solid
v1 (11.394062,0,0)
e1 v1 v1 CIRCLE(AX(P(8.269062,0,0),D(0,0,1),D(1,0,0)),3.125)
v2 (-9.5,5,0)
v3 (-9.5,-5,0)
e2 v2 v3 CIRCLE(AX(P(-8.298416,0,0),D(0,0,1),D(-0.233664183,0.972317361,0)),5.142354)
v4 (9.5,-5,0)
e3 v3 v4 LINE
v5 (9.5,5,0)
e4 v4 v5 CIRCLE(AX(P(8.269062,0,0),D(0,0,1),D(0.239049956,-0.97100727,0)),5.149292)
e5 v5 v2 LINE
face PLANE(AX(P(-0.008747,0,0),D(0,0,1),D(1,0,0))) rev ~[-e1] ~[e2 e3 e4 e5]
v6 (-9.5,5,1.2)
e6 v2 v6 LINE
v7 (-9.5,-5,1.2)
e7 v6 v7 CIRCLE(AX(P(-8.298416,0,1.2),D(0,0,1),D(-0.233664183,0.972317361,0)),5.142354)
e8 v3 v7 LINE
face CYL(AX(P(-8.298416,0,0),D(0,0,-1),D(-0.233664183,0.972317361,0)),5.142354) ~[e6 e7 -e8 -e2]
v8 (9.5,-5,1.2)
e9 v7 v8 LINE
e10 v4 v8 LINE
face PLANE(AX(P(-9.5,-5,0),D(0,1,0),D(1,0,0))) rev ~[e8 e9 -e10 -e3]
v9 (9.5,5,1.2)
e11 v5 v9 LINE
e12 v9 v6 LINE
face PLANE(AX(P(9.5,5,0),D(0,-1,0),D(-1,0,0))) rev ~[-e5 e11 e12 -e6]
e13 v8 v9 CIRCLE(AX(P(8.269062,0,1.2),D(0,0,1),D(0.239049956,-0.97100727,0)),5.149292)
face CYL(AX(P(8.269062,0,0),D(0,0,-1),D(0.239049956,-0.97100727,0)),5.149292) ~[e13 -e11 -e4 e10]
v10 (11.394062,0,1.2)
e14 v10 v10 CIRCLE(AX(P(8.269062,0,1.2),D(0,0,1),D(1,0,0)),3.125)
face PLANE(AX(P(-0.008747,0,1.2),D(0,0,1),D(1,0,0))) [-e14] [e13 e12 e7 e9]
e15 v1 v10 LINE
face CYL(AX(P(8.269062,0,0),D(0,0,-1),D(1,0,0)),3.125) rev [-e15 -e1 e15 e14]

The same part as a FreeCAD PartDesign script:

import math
import FreeCAD as App
import Part
import Sketcher

V = App.Vector

doc = App.newDocument("Part")
body = doc.addObject("PartDesign::Body", "Body")

sketch1 = body.newObject("Sketcher::SketchObject", "Sketch")
sketch1.AttachmentSupport = (doc.getObject("XY_Plane"), [""])
sketch1.MapMode = "FlatFace"
sketch1.addGeometry([
    Part.LineSegment(V(-9.5, -5, 0), V(9.5, -5, 0)),
    Part.ArcOfCircle(Part.Circle(V(8.269062, 0, 0), V(0, 0, 1), 5.149292), math.radians(-76.169525), math.radians(76.169525)),
    Part.LineSegment(V(9.5, 5, 0), V(-9.5, 5, 0)),
    Part.ArcOfCircle(Part.Circle(V(-8.298416, 0, 0), V(0, 0, 1), 5.142354), math.radians(103.512894), math.radians(256.487106)),
    Part.Circle(V(8.269062, 0, 0), V(0, 0, 1), 3.125),
], False)
sketch1.addConstraint([
    Sketcher.Constraint("Coincident", 0, 2, 1, 1),
    Sketcher.Constraint("Coincident", 1, 2, 2, 1),
    Sketcher.Constraint("Coincident", 2, 2, 3, 1),
    Sketcher.Constraint("Coincident", 3, 2, 0, 1),
    Sketcher.Constraint("Horizontal", 0),
    Sketcher.Constraint("Horizontal", 2),
    Sketcher.Constraint("Coincident", 4, 3, 1, 3),
    Sketcher.Constraint("Symmetric", 0, 2, 2, 2, -1, 1),
    Sketcher.Constraint("PointOnObject", 1, 3, -1),
    Sketcher.Constraint("PointOnObject", 3, 3, -1),
    Sketcher.Constraint("Diameter", 4, 6.25),
    Sketcher.Constraint("DistanceX", 0, 1, 0, 2, 19.0),
    Sketcher.Constraint("DistanceY", 0, 2, -1, 1, 5.0),
    Sketcher.Constraint("Radius", 1, 5.149292),
    Sketcher.Constraint("Radius", 3, 5.142354),
])
pad1 = body.newObject("PartDesign::Pad", "Pad")
pad1.Profile = sketch1
pad1.Length = 1.2

doc.recompute()
